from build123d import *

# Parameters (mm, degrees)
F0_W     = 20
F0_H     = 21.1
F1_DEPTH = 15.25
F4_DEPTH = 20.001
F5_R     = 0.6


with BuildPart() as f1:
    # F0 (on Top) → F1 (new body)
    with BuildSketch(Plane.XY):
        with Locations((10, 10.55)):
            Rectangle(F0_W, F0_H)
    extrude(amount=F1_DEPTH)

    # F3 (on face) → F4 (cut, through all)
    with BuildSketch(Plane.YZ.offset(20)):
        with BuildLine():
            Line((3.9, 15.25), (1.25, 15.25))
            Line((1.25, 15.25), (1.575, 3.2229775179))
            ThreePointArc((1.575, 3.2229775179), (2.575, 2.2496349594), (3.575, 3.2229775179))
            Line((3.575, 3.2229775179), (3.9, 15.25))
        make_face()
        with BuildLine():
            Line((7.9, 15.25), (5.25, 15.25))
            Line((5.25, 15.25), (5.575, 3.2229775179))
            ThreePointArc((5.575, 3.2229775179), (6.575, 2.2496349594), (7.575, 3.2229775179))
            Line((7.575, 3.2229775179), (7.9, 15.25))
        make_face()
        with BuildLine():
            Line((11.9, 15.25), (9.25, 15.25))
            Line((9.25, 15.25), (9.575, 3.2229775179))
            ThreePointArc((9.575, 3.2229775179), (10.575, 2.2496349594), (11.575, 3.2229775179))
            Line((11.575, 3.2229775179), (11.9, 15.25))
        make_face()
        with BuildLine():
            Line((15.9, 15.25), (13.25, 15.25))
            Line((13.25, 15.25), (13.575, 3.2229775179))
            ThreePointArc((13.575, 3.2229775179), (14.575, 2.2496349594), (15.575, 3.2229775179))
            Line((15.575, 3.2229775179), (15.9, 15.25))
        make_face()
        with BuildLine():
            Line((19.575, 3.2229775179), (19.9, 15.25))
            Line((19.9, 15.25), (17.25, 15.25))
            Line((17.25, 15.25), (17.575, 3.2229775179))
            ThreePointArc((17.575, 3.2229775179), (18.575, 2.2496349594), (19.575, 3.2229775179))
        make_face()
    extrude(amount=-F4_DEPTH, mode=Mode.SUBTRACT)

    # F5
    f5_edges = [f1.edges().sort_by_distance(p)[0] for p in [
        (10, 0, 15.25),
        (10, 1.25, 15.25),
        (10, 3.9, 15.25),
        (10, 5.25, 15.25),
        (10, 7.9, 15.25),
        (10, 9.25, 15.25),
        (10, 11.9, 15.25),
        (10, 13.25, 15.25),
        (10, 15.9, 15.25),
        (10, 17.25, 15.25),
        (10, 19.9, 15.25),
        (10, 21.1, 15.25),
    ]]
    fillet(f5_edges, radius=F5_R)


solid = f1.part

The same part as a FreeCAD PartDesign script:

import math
import FreeCAD as App
import Part
import Sketcher
from FreeCAD import Vector


def edges_at(feature, points):
    """Names of the edges that pass closest to the given points."""
    edges = feature.Shape.Edges
    near = lambda p: min(range(len(edges)), key=lambda i: edges[i].distToShape(Part.Vertex(*p))[0])
    return sorted({f"Edge{near(p) + 1}" for p in points})

doc = App.newDocument("Part")
body = doc.addObject("PartDesign::Body", "Body")

sketch1 = body.newObject("Sketcher::SketchObject", "Sketch")
sketch1.AttachmentSupport = (doc.getObject("XY_Plane"), [""])
sketch1.MapMode = "FlatFace"
sketch1.addGeometry([
    Part.LineSegment(Vector(0, 21, 0), Vector(0, 0, 0)),
    Part.LineSegment(Vector(0, 0, 0), Vector(20, 0, 0)),
    Part.LineSegment(Vector(20, 0, 0), Vector(20, 21, 0)),
    Part.LineSegment(Vector(20, 21, 0), Vector(0, 21, 0)),
], False)
sketch1.addConstraint([
    Sketcher.Constraint("Coincident", 0, 2, 1, 1),
    Sketcher.Constraint("Coincident", 1, 2, 2, 1),
    Sketcher.Constraint("Coincident", 2, 2, 3, 1),
    Sketcher.Constraint("Coincident", 3, 2, 0, 1),
    Sketcher.Constraint("Vertical", 0),
    Sketcher.Constraint("Horizontal", 1),
    Sketcher.Constraint("Vertical", 2),
    Sketcher.Constraint("Horizontal", 3),
    Sketcher.Constraint("Coincident", 0, 2, -1, 1),
    Sketcher.Constraint("DistanceX", 1, 1, 1, 2, 20.0),
    Sketcher.Constraint("DistanceY", 0, 2, 0, 1, 21.1),
])
pad1 = body.newObject("PartDesign::Pad", "Pad")
pad1.Profile = sketch1
pad1.Length = 15.25

sketch2 = body.newObject("Sketcher::SketchObject", "Sketch001")
sketch2.AttachmentSupport = (doc.getObject("YZ_Plane"), [""])
sketch2.MapMode = "FlatFace"
sketch2.AttachmentOffset = App.Placement(Vector(0, 0, 20), App.Rotation())
sketch2.addGeometry([
    Part.LineSegment(Vector(3.9, 15.2, 0), Vector(1.2, 15.2, 0)),
    Part.LineSegment(Vector(1.2, 15.2, 0), Vector(1.6, 3.2, 0)),
    Part.ArcOfCircle(Part.Circle(Vector(2.6, 3.2, 0), Vector(0, 0, 1), 1), math.radians(-178), math.radians(-2)),
    Part.LineSegment(Vector(3.6, 3.2, 0), Vector(3.9, 15.2, 0)),
    Part.LineSegment(Vector(7.9, 15.2, 0), Vector(5.2, 15.2, 0)),
    Part.LineSegment(Vector(5.2, 15.2, 0), Vector(5.6, 3.2, 0)),
    Part.ArcOfCircle(Part.Circle(Vector(6.6, 3.2, 0), Vector(0, 0, 1), 1), math.radians(-178), math.radians(-2)),
    Part.LineSegment(Vector(7.6, 3.2, 0), Vector(7.9, 15.2, 0)),
    Part.LineSegment(Vector(11.9, 15.2, 0), Vector(9.2, 15.2, 0)),
    Part.LineSegment(Vector(9.2, 15.2, 0), Vector(9.6, 3.2, 0)),
    Part.ArcOfCircle(Part.Circle(Vector(10.6, 3.2, 0), Vector(0, 0, 1), 1), math.radians(-178), math.radians(-2)),
    Part.LineSegment(Vector(11.6, 3.2, 0), Vector(11.9, 15.2, 0)),
    Part.LineSegment(Vector(15.9, 15.2, 0), Vector(13.2, 15.2, 0)),
    Part.LineSegment(Vector(13.2, 15.2, 0), Vector(13.6, 3.2, 0)),
    Part.ArcOfCircle(Part.Circle(Vector(14.6, 3.2, 0), Vector(0, 0, 1), 1), math.radians(-178), math.radians(-2)),
    Part.LineSegment(Vector(15.6, 3.2, 0), Vector(15.9, 15.2, 0)),
    Part.LineSegment(Vector(19.6, 3.2, 0), Vector(19.9, 15.2, 0)),
    Part.LineSegment(Vector(19.9, 15.2, 0), Vector(17.2, 15.2, 0)),
    Part.LineSegment(Vector(17.2, 15.2, 0), Vector(17.6, 3.2, 0)),
    Part.ArcOfCircle(Part.Circle(Vector(18.6, 3.2, 0), Vector(0, 0, 1), 1), math.radians(-178), math.radians(-2)),
], False)
sketch2.addConstraint([
    Sketcher.Constraint("Coincident", 0, 2, 1, 1),
    Sketcher.Constraint("Tangent", 1, 2, 2, 1),
    Sketcher.Constraint("Tangent", 2, 2, 3, 1),
    Sketcher.Constraint("Coincident", 3, 2, 0, 1),
    Sketcher.Constraint("Coincident", 4, 2, 5, 1),
    Sketcher.Constraint("Tangent", 5, 2, 6, 1),
    Sketcher.Constraint("Tangent", 6, 2, 7, 1),
    Sketcher.Constraint("Coincident", 7, 2, 4, 1),
    Sketcher.Constraint("Coincident", 8, 2, 9, 1),
    Sketcher.Constraint("Tangent", 9, 2, 10, 1),
    Sketcher.Constraint("Tangent", 10, 2, 11, 1),
    Sketcher.Constraint("Coincident", 11, 2, 8, 1),
    Sketcher.Constraint("Coincident", 12, 2, 13, 1),
    Sketcher.Constraint("Tangent", 13, 2, 14, 1),
    Sketcher.Constraint("Tangent", 14, 2, 15, 1),
    Sketcher.Constraint("Coincident", 15, 2, 12, 1),
    Sketcher.Constraint("Coincident", 16, 2, 17, 1),
    Sketcher.Constraint("Coincident", 17, 2, 18, 1),
    Sketcher.Constraint("Tangent", 18, 2, 19, 1),
    Sketcher.Constraint("Tangent", 19, 2, 16, 1),
    Sketcher.Constraint("Horizontal", 0),
    Sketcher.Constraint("Horizontal", 4),
    Sketcher.Constraint("Horizontal", 8),
    Sketcher.Constraint("Horizontal", 12),
    Sketcher.Constraint("Horizontal", 17),
    Sketcher.Constraint("Equal", 2, 6),
    Sketcher.Constraint("Equal", 6, 10),
    Sketcher.Constraint("Equal", 10, 14),
    Sketcher.Constraint("Equal", 14, 19),
    Sketcher.Constraint("Parallel", 1, 5),
    Sketcher.Constraint("Parallel", 3, 7),
    Sketcher.Constraint("Parallel", 5, 9),
    Sketcher.Constraint("Parallel", 7, 11),
    Sketcher.Constraint("Parallel", 9, 13),
    Sketcher.Constraint("Parallel", 11, 15),
    Sketcher.Constraint("Parallel", 15, 16),
    Sketcher.Constraint("Parallel", 13, 18),
    Sketcher.Constraint("Horizontal", 2, 3, 6, 3),
    Sketcher.Constraint("Horizontal", 6, 3, 10, 3),
    Sketcher.Constraint("Horizontal", 10, 3, 14, 3),
    Sketcher.Constraint("Horizontal", 14, 3, 19, 3),
    Sketcher.Constraint("Horizontal", 1, 2, 2, 2),
    Sketcher.Constraint("Horizontal", 3, 2, 4, 2),
    Sketcher.Constraint("Horizontal", 7, 2, 8, 2),
    Sketcher.Constraint("Horizontal", 11, 2, 12, 2),
    Sketcher.Constraint("Horizontal", 15, 2, 16, 2),
    Sketcher.Constraint("DistanceX", 2, 3, 6, 3, 4.0),
    Sketcher.Constraint("DistanceX", 6, 3, 10, 3, 4.0),
    Sketcher.Constraint("DistanceX", 10, 3, 14, 3, 4.0),
    Sketcher.Constraint("DistanceX", 14, 3, 19, 3, 4.0),
    Sketcher.Constraint("DistanceY", 2, 3, 0, 2, 12.0),
    Sketcher.Constraint("DistanceX", 1, 2, 2, 3, 1.0),
    Sketcher.Constraint("DistanceX", 0, 2, 0, 1, 2.65),
    Sketcher.Constraint("DistanceX", -1, 1, 3, 2, 3.9),
    Sketcher.Constraint("DistanceY", -1, 1, 2, 3, 3.25),
])
pocket1 = body.newObject("PartDesign::Pocket", "Pocket")
pocket1.Profile = sketch2
pocket1.Type = "ThroughAll"
doc.recompute()

fillet = body.newObject("PartDesign::Fillet", "Fillet")
fillet.Base = (pocket1, edges_at(pocket1, [
    (10, 0, 15.25),
    (10, 1.25, 15.25),
    (10, 3.9, 15.25),
    (10, 5.25, 15.25),
    (10, 7.9, 15.25),
    (10, 9.25, 15.25),
    (10, 11.9, 15.25),
    (10, 13.25, 15.25),
    (10, 15.9, 15.25),
    (10, 17.25, 15.25),
    (10, 19.9, 15.25),
    (10, 21.1, 15.25),
]))
fillet.Radius = 0.6

doc.recompute()
